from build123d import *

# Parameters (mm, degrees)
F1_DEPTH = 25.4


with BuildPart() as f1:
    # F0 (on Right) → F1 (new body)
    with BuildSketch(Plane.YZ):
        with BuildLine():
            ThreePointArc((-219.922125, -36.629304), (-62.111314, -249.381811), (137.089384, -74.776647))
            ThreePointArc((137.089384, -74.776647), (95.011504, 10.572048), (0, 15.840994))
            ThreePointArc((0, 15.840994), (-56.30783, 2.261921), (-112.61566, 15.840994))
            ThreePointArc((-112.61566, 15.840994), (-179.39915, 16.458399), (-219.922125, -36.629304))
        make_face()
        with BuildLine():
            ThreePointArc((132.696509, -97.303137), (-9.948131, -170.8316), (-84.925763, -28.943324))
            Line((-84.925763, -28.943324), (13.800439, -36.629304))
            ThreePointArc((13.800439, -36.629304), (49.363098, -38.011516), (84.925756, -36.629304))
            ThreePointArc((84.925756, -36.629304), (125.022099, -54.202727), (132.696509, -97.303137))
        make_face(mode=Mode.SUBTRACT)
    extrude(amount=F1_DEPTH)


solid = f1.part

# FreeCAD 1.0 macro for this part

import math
import FreeCAD as App
import Part
import Sketcher
Q = App.Units.Quantity

doc = App.newDocument("Part")
body = doc.addObject("PartDesign::Body", "Body")

# Sketch on YZ plane
sketch1 = body.newObject("Sketcher::SketchObject", "Sketch")
sketch1.AttachmentSupport = (doc.getObject("YZ_Plane"), [""])
sketch1.MapMode = "FlatFace"
sketch1.addGeometry([
    Part.ArcOfCircle(Part.Circle(App.Vector(-43, -70, 0), App.Vector(0, 0, 1), 180), math.radians(169), math.radians(359)),  # 0
    Part.ArcOfCircle(Part.Circle(App.Vector(43, -68, 0), App.Vector(0, 0, 1), 94), math.radians(-4), math.radians(117)),  # 1
    Part.ArcOfCircle(Part.Circle(App.Vector(-56, 126, 0), App.Vector(0, 0, 1), 124), math.radians(-117), math.radians(-63)),  # 2
    Part.ArcOfCircle(Part.Circle(App.Vector(-147, -51, 0), App.Vector(0, 0, 1), 75), math.radians(63), math.radians(169)),  # 3
    Part.ArcOfCircle(Part.Circle(App.Vector(89, -83, 0), App.Vector(0, 0, 1), 46), math.radians(-18), math.radians(94)),  # 4
    Part.ArcOfCircle(Part.Circle(App.Vector(24, -62, 0), App.Vector(0, 0, 1), 114), math.radians(163), math.radians(342)),  # 5
    Part.LineSegment(App.Vector(-85, -29, 0), App.Vector(14, -37, 0)),  # 6
    Part.ArcOfCircle(Part.Circle(App.Vector(49, 420, 0), App.Vector(0, 0, 1), 458), math.radians(-94.45), math.radians(-85.55)),  # 7
], False)
sketch1.addConstraint([
    Sketcher.Constraint("Coincident", 0, 2, 1, 1),
    Sketcher.Constraint("Tangent", 1, 2, 2, 2),
    Sketcher.Constraint("Tangent", 2, 1, 3, 1),
    Sketcher.Constraint("Tangent", 3, 2, 0, 1),
    Sketcher.Constraint("Tangent", 4, 1, 5, 2),
    Sketcher.Constraint("Coincident", 5, 1, 6, 1),
    Sketcher.Constraint("Tangent", 6, 2, 7, 1),
    Sketcher.Constraint("Tangent", 7, 2, 4, 2),
    Sketcher.Constraint("PointOnObject", 1, 2, -2),
    Sketcher.Constraint("Horizontal", 1, 2, 2, 1),
    Sketcher.Constraint("Horizontal", 3, 2, 6, 2),
    Sketcher.Constraint("Horizontal", 6, 2, 7, 2),
    Sketcher.Constraint("Radius", 7, 458.183401),
    Sketcher.Constraint("DistanceY", -1, 1, 7, 3, Q("16.5422002 in")),
    Sketcher.Constraint("Radius", 0, 180.119615),
    Sketcher.Constraint("Radius", 1, 94.328847),
    Sketcher.Constraint("Radius", 2, 123.534314),
    Sketcher.Constraint("Radius", 3, 74.611707),
    Sketcher.Constraint("Radius", 4, 46.444616),
    Sketcher.Constraint("Radius", 5, 114.059104),
    Sketcher.Constraint("DistanceX", 2, 3, 1, 3, 99.303599),
    Sketcher.Constraint("DistanceY", 0, 3, 7, 3, 490.453601),
    Sketcher.Constraint("DistanceX", -1, 1, 4, 3, 88.530631),
    Sketcher.Constraint("DistanceY", 4, 3, -1, 1, 82.93381),
    Sketcher.Constraint("DistanceX", -1, 1, 5, 3, 24.233549),
])
pad1 = body.newObject("PartDesign::Pad", "Pad")
pad1.Profile = sketch1
pad1.Length = Q("1 in")

doc.recompute()
